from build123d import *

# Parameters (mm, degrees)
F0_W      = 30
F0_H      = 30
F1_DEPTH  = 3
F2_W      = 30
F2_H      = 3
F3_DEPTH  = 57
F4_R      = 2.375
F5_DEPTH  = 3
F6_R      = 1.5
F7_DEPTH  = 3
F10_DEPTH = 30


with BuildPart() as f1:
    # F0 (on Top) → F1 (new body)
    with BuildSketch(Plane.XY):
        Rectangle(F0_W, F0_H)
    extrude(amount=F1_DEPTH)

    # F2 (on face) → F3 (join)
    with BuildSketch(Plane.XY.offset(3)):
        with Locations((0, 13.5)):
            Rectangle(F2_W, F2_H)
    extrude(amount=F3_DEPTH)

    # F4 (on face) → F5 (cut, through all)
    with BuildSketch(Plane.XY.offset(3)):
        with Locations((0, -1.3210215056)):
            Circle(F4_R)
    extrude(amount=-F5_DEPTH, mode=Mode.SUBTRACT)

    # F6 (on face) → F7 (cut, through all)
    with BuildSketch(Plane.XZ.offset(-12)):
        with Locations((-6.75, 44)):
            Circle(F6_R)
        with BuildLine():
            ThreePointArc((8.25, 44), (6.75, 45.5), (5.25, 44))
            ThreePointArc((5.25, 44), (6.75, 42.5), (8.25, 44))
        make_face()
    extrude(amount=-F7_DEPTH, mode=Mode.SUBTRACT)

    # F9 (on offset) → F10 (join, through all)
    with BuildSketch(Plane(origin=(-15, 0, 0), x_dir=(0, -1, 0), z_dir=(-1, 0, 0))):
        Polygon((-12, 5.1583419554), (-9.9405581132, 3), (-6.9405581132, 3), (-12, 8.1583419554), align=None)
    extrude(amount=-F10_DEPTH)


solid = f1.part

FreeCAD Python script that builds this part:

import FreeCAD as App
import Part
import Sketcher
from FreeCAD import Vector

doc = App.newDocument("Part")
body = doc.addObject("PartDesign::Body", "Body")

# Sketch on XY plane
sketch1 = body.newObject("Sketcher::SketchObject", "Sketch")
sketch1.AttachmentSupport = (doc.getObject("XY_Plane"), [""])
sketch1.MapMode = "FlatFace"
sketch1.addGeometry(Part.LineSegment(Vector(-15, 15, 0), Vector(-15, -15, 0)), False)
sketch1.addGeometry(Part.LineSegment(Vector(-15, -15, 0), Vector(15, -15, 0)), False)
sketch1.addGeometry(Part.LineSegment(Vector(15, -15, 0), Vector(15, 15, 0)), False)
sketch1.addGeometry(Part.LineSegment(Vector(15, 15, 0), Vector(-15, 15, 0)), False)
sketch1.addConstraint(Sketcher.Constraint("Coincident", 0, 2, 1, 1))
sketch1.addConstraint(Sketcher.Constraint("Coincident", 1, 2, 2, 1))
sketch1.addConstraint(Sketcher.Constraint("Coincident", 2, 2, 3, 1))
sketch1.addConstraint(Sketcher.Constraint("Coincident", 3, 2, 0, 1))
sketch1.addConstraint(Sketcher.Constraint("Vertical", 0))
sketch1.addConstraint(Sketcher.Constraint("Horizontal", 1))
sketch1.addConstraint(Sketcher.Constraint("Vertical", 2))
sketch1.addConstraint(Sketcher.Constraint("Horizontal", 3))
sketch1.addConstraint(Sketcher.Constraint("Symmetric", 0, 2, 2, 2, -1, 1))
sketch1.addConstraint(Sketcher.Constraint("Equal", 3, 0))
sketch1.addConstraint(Sketcher.Constraint("DistanceX", 1, 1, 1, 2, 30.0))
pad1 = body.newObject("PartDesign::Pad", "Pad")
pad1.Profile = sketch1
pad1.Length = 3

# Sketch on XY plane
sketch2 = body.newObject("Sketcher::SketchObject", "Sketch001")
sketch2.AttachmentSupport = (doc.getObject("XY_Plane"), [""])
sketch2.MapMode = "FlatFace"
sketch2.AttachmentOffset = App.Placement(Vector(0, 0, 3), App.Rotation())
sketch2.addGeometry(Part.LineSegment(Vector(-15, 15, 0), Vector(-15, 12, 0)), False)
sketch2.addGeometry(Part.LineSegment(Vector(-15, 12, 0), Vector(15, 12, 0)), False)
sketch2.addGeometry(Part.LineSegment(Vector(15, 12, 0), Vector(15, 15, 0)), False)
sketch2.addGeometry(Part.LineSegment(Vector(15, 15, 0), Vector(-15, 15, 0)), False)
sketch2.addConstraint(Sketcher.Constraint("Coincident", 0, 2, 1, 1))
sketch2.addConstraint(Sketcher.Constraint("Coincident", 1, 2, 2, 1))
sketch2.addConstraint(Sketcher.Constraint("Coincident", 2, 2, 3, 1))
sketch2.addConstraint(Sketcher.Constraint("Coincident", 3, 2, 0, 1))
sketch2.addConstraint(Sketcher.Constraint("Vertical", 0))
sketch2.addConstraint(Sketcher.Constraint("Horizontal", 1))
sketch2.addConstraint(Sketcher.Constraint("Vertical", 2))
sketch2.addConstraint(Sketcher.Constraint("Horizontal", 3))
sketch2.addConstraint(Sketcher.Constraint("DistanceX", 1, 1, 1, 2, 30.0))
sketch2.addConstraint(Sketcher.Constraint("DistanceY", 0, 2, 0, 1, 3.0))
sketch2.addConstraint(Sketcher.Constraint("DistanceX", 0, 2, -1, 1, 15.0))
sketch2.addConstraint(Sketcher.Constraint("DistanceY", -1, 1, 0, 2, 12.0))
pad2 = body.newObject("PartDesign::Pad", "Pad001")
pad2.Profile = sketch2
pad2.Length = 57

# Sketch on XY plane
sketch3 = body.newObject("Sketcher::SketchObject", "Sketch002")
sketch3.AttachmentSupport = (doc.getObject("XY_Plane"), [""])
sketch3.MapMode = "FlatFace"
sketch3.AttachmentOffset = App.Placement(Vector(0, 0, 3), App.Rotation())
sketch3.addGeometry(Part.Circle(Vector(0, -1.3, 0), Vector(0, 0, 1), 2.4), False)
sketch3.addConstraint(Sketcher.Constraint("PointOnObject", 0, 3, -2))
sketch3.addConstraint(Sketcher.Constraint("Diameter", 0, 4.75))
sketch3.addConstraint(Sketcher.Constraint("DistanceY", 0, 3, -1, 1, 1.321022))
pocket1 = body.newObject("PartDesign::Pocket", "Pocket")
pocket1.Profile = sketch3
pocket1.Type = "ThroughAll"

# Sketch on XZ plane
sketch4 = body.newObject("Sketcher::SketchObject", "Sketch003")
sketch4.AttachmentSupport = (doc.getObject("XZ_Plane"), [""])
sketch4.MapMode = "FlatFace"
sketch4.AttachmentOffset = App.Placement(Vector(0, 0, -12), App.Rotation())
sketch4.addGeometry(Part.Circle(Vector(-6.8, 44, 0), Vector(0, 0, 1), 1.5), False)
sketch4.addGeometry(Part.Circle(Vector(6.8, 44, 0), Vector(0, 0, 1), 1.5), False)
sketch4.addConstraint(Sketcher.Constraint("Equal", 0, 1))
sketch4.addConstraint(Sketcher.Constraint("Symmetric", 0, 3, 1, 3, -2))
sketch4.addConstraint(Sketcher.Constraint("Diameter", 0, 3.0))
sketch4.addConstraint(Sketcher.Constraint("DistanceY", -1, 1, 0, 3, 44.0))
sketch4.addConstraint(Sketcher.Constraint("DistanceX", 0, 3, 1, 3, 13.5))
pocket2 = body.newObject("PartDesign::Pocket", "Pocket001")
pocket2.Profile = sketch4
pocket2.Type = "ThroughAll"

# Sketch on YZ plane
sketch5 = body.newObject("Sketcher::SketchObject", "Sketch004")
sketch5.AttachmentSupport = (doc.getObject("YZ_Plane"), [""])
sketch5.MapMode = "FlatFace"
sketch5.AttachmentOffset = App.Placement(Vector(0, 0, -15), App.Rotation())
sketch5.addGeometry(Part.LineSegment(Vector(12, 5.2, 0), Vector(9.9, 3, 0)), False)
sketch5.addGeometry(Part.LineSegment(Vector(9.9, 3, 0), Vector(6.9, 3, 0)), False)
sketch5.addGeometry(Part.LineSegment(Vector(6.9, 3, 0), Vector(12, 8.2, 0)), False)
sketch5.addGeometry(Part.LineSegment(Vector(12, 8.2, 0), Vector(12, 5.2, 0)), False)
sketch5.addConstraint(Sketcher.Constraint("Coincident", 0, 2, 1, 1))
sketch5.addConstraint(Sketcher.Constraint("Coincident", 1, 2, 2, 1))
sketch5.addConstraint(Sketcher.Constraint("Coincident", 2, 2, 3, 1))
sketch5.addConstraint(Sketcher.Constraint("Coincident", 3, 2, 0, 1))
sketch5.addConstraint(Sketcher.Constraint("Horizontal", 1))
sketch5.addConstraint(Sketcher.Constraint("Vertical", 3))
sketch5.addConstraint(Sketcher.Constraint("Equal", 1, 3))
sketch5.addConstraint(Sketcher.Constraint("DistanceX", 1, 2, 1, 1, 3.0))
sketch5.addConstraint(Sketcher.Constraint("DistanceY", -1, 1, 0, 2, 3.0))
sketch5.addConstraint(Sketcher.Constraint("DistanceX", -1, 1, 2, 2, 12.0))
sketch5.addConstraint(Sketcher.Constraint("DistanceX", -1, 1, 0, 2, 9.940558))
sketch5.addConstraint(Sketcher.Constraint("DistanceY", -1, 1, 2, 2, 8.158342))
pad3 = body.newObject("PartDesign::Pad", "Pad002")
pad3.Profile = sketch5
pad3.Length = 30

doc.recompute()
